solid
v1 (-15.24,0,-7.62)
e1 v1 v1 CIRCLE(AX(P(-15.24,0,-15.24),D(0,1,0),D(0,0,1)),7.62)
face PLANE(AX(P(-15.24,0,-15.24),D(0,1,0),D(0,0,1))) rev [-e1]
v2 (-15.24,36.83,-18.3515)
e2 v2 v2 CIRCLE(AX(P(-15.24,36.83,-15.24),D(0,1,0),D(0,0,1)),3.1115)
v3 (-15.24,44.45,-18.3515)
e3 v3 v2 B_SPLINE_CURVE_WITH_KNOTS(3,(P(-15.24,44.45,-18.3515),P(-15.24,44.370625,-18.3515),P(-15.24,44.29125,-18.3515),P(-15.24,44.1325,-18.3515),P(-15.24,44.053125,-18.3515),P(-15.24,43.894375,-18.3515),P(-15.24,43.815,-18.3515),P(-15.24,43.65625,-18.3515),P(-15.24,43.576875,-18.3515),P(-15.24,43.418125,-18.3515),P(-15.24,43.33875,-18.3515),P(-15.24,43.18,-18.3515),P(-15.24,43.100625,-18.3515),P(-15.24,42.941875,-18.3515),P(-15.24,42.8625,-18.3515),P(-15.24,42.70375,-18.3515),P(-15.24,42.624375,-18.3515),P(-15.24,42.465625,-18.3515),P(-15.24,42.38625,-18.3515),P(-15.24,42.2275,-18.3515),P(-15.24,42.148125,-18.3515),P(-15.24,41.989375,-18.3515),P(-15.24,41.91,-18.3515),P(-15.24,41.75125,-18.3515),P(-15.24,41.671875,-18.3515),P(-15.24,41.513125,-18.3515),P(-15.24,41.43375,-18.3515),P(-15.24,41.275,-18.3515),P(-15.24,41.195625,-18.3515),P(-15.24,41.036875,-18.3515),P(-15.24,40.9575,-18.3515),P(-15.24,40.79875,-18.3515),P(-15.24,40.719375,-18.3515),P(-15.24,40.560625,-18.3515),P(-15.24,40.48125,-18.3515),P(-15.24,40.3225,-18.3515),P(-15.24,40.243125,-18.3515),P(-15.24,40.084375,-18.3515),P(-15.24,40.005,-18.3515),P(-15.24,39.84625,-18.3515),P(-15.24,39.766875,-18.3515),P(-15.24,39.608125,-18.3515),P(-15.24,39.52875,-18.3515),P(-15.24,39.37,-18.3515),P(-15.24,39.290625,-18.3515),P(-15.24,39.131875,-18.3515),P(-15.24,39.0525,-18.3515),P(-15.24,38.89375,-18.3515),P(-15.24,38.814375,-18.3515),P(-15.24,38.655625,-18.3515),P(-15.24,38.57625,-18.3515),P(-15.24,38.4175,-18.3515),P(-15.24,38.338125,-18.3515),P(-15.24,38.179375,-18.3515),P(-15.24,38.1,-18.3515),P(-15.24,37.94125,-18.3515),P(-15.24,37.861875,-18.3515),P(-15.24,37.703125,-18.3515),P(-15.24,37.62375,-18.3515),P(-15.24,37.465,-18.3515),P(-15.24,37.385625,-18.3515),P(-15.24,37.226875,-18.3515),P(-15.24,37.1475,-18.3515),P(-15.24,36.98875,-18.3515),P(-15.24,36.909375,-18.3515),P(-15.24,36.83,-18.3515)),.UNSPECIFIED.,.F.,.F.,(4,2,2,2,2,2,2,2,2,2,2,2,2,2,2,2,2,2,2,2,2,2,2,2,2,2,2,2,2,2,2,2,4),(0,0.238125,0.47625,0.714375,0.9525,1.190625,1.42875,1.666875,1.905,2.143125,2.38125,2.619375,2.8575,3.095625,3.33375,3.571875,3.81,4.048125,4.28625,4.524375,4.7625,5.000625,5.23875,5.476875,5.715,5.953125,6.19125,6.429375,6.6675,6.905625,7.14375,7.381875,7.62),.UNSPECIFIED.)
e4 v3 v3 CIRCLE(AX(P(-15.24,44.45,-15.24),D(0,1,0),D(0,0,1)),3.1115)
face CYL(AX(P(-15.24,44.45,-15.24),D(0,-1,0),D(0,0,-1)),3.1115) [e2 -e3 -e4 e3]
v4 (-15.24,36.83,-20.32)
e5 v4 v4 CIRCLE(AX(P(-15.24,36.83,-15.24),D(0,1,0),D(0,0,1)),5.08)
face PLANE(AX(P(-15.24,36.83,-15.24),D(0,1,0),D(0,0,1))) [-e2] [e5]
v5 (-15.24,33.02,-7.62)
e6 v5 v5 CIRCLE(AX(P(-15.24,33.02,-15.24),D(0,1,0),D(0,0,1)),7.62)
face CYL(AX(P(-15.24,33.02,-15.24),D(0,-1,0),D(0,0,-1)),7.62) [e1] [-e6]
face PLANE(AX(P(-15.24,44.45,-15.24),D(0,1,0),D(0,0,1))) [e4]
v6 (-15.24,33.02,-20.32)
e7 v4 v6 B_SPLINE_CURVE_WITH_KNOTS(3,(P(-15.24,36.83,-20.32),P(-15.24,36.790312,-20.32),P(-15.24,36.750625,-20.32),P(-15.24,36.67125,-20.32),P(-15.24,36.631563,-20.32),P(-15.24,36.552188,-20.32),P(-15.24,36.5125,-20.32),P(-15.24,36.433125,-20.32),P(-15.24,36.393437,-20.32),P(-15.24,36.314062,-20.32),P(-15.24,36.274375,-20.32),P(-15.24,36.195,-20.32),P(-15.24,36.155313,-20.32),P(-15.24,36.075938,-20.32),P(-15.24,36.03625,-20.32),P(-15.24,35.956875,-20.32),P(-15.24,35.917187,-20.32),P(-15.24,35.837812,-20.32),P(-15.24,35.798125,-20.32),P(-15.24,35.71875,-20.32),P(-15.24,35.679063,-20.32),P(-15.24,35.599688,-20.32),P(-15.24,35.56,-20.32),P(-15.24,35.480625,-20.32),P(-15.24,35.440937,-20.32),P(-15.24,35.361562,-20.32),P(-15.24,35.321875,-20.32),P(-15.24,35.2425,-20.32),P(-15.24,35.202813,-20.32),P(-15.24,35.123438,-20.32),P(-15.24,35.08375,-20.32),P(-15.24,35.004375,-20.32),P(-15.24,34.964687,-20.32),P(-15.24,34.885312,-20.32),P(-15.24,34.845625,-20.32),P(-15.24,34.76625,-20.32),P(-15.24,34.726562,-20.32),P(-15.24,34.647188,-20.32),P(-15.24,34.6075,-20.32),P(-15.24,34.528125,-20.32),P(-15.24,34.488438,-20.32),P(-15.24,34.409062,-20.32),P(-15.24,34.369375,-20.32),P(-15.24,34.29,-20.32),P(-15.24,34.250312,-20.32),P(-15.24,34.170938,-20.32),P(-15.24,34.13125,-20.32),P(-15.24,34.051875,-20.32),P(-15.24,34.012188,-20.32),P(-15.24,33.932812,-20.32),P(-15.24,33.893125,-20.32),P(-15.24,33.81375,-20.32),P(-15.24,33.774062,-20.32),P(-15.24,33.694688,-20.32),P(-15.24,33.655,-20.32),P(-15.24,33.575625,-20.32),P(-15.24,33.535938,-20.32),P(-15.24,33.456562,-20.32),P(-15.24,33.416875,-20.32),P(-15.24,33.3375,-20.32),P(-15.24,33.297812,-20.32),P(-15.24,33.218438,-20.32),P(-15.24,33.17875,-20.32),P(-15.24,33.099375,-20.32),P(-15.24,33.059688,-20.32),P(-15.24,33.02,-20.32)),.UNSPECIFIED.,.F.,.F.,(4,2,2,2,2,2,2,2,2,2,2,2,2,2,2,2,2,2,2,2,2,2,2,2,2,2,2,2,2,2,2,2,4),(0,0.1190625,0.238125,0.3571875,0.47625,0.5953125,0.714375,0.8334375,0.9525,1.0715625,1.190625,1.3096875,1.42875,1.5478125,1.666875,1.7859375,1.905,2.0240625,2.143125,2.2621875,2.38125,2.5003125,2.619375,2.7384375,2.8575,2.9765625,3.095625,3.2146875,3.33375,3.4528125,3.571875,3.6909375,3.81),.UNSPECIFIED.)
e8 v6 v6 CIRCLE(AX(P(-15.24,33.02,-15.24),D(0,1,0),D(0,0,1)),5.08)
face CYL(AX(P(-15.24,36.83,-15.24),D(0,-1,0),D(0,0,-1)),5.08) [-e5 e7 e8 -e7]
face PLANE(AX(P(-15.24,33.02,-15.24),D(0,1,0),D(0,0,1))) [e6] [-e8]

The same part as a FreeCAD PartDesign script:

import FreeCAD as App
import Part
import Sketcher
from FreeCAD import Vector
Q = App.Units.Quantity

doc = App.newDocument("Part")
body = doc.addObject("PartDesign::Body", "Body")

# Sketch on XZ plane
sketch1 = doc.addObject("Sketcher::SketchObject", "Sketch")
body.addObject(sketch1)
sketch1.AttachmentSupport = (doc.XZ_Plane, [""])
sketch1.MapMode = "FlatFace"
sketch1.addGeometry(Part.Circle(Vector(-15, -15, 0), Vector(0, 0, 1), 8), False)
sketch1.addConstraint([
    Sketcher.Constraint("Diameter", 0, Q("0.6 in")),
    Sketcher.Constraint("DistanceX", 0, 3, -1, 1, Q("0.6 in")),
    Sketcher.Constraint("DistanceY", 0, 3, -1, 1, Q("0.6 in")),
])
pad1 = doc.addObject("PartDesign::Pad", "Pad")
body.addObject(pad1)
pad1.Profile = sketch1
pad1.Length = Q("1.3 in")
pad1.Reversed = True

# Sketch on XZ plane
sketch2 = doc.addObject("Sketcher::SketchObject", "Sketch001")
body.addObject(sketch2)
sketch2.AttachmentSupport = (doc.XZ_Plane, [""])
sketch2.MapMode = "FlatFace"
sketch2.AttachmentOffset = App.Placement(Vector(0, 0, -1.3 * 25.4), App.Rotation())
sketch2.addGeometry(Part.Circle(Vector(-15, -15, 0), Vector(0, 0, 1), 5), False)
sketch2.addConstraint([
    Sketcher.Constraint("Diameter", 0, Q("0.4 in")),
    Sketcher.Constraint("DistanceX", 0, 3, -1, 1, Q("0.6 in")),
    Sketcher.Constraint("DistanceY", 0, 3, -1, 1, Q("0.6 in")),
])
pad2 = doc.addObject("PartDesign::Pad", "Pad001")
body.addObject(pad2)
pad2.Profile = sketch2
pad2.Length = Q("0.15 in")
pad2.Reversed = True

# Sketch on XZ plane
sketch3 = doc.addObject("Sketcher::SketchObject", "Sketch002")
body.addObject(sketch3)
sketch3.AttachmentSupport = (doc.XZ_Plane, [""])
sketch3.MapMode = "FlatFace"
sketch3.AttachmentOffset = App.Placement(Vector(0, 0, -1.45 * 25.4), App.Rotation())
sketch3.addGeometry(Part.Circle(Vector(-15.2, -15.2, 0), Vector(0, 0, 1), 3.1), False)
sketch3.addConstraint([
    Sketcher.Constraint("Diameter", 0, Q("0.245 in")),
    Sketcher.Constraint("DistanceX", 0, 3, -1, 1, Q("0.6 in")),
    Sketcher.Constraint("DistanceY", 0, 3, -1, 1, Q("0.6 in")),
])
pad3 = doc.addObject("PartDesign::Pad", "Pad002")
body.addObject(pad3)
pad3.Profile = sketch3
pad3.Length = Q("0.3 in")
pad3.Reversed = True

doc.recompute()
